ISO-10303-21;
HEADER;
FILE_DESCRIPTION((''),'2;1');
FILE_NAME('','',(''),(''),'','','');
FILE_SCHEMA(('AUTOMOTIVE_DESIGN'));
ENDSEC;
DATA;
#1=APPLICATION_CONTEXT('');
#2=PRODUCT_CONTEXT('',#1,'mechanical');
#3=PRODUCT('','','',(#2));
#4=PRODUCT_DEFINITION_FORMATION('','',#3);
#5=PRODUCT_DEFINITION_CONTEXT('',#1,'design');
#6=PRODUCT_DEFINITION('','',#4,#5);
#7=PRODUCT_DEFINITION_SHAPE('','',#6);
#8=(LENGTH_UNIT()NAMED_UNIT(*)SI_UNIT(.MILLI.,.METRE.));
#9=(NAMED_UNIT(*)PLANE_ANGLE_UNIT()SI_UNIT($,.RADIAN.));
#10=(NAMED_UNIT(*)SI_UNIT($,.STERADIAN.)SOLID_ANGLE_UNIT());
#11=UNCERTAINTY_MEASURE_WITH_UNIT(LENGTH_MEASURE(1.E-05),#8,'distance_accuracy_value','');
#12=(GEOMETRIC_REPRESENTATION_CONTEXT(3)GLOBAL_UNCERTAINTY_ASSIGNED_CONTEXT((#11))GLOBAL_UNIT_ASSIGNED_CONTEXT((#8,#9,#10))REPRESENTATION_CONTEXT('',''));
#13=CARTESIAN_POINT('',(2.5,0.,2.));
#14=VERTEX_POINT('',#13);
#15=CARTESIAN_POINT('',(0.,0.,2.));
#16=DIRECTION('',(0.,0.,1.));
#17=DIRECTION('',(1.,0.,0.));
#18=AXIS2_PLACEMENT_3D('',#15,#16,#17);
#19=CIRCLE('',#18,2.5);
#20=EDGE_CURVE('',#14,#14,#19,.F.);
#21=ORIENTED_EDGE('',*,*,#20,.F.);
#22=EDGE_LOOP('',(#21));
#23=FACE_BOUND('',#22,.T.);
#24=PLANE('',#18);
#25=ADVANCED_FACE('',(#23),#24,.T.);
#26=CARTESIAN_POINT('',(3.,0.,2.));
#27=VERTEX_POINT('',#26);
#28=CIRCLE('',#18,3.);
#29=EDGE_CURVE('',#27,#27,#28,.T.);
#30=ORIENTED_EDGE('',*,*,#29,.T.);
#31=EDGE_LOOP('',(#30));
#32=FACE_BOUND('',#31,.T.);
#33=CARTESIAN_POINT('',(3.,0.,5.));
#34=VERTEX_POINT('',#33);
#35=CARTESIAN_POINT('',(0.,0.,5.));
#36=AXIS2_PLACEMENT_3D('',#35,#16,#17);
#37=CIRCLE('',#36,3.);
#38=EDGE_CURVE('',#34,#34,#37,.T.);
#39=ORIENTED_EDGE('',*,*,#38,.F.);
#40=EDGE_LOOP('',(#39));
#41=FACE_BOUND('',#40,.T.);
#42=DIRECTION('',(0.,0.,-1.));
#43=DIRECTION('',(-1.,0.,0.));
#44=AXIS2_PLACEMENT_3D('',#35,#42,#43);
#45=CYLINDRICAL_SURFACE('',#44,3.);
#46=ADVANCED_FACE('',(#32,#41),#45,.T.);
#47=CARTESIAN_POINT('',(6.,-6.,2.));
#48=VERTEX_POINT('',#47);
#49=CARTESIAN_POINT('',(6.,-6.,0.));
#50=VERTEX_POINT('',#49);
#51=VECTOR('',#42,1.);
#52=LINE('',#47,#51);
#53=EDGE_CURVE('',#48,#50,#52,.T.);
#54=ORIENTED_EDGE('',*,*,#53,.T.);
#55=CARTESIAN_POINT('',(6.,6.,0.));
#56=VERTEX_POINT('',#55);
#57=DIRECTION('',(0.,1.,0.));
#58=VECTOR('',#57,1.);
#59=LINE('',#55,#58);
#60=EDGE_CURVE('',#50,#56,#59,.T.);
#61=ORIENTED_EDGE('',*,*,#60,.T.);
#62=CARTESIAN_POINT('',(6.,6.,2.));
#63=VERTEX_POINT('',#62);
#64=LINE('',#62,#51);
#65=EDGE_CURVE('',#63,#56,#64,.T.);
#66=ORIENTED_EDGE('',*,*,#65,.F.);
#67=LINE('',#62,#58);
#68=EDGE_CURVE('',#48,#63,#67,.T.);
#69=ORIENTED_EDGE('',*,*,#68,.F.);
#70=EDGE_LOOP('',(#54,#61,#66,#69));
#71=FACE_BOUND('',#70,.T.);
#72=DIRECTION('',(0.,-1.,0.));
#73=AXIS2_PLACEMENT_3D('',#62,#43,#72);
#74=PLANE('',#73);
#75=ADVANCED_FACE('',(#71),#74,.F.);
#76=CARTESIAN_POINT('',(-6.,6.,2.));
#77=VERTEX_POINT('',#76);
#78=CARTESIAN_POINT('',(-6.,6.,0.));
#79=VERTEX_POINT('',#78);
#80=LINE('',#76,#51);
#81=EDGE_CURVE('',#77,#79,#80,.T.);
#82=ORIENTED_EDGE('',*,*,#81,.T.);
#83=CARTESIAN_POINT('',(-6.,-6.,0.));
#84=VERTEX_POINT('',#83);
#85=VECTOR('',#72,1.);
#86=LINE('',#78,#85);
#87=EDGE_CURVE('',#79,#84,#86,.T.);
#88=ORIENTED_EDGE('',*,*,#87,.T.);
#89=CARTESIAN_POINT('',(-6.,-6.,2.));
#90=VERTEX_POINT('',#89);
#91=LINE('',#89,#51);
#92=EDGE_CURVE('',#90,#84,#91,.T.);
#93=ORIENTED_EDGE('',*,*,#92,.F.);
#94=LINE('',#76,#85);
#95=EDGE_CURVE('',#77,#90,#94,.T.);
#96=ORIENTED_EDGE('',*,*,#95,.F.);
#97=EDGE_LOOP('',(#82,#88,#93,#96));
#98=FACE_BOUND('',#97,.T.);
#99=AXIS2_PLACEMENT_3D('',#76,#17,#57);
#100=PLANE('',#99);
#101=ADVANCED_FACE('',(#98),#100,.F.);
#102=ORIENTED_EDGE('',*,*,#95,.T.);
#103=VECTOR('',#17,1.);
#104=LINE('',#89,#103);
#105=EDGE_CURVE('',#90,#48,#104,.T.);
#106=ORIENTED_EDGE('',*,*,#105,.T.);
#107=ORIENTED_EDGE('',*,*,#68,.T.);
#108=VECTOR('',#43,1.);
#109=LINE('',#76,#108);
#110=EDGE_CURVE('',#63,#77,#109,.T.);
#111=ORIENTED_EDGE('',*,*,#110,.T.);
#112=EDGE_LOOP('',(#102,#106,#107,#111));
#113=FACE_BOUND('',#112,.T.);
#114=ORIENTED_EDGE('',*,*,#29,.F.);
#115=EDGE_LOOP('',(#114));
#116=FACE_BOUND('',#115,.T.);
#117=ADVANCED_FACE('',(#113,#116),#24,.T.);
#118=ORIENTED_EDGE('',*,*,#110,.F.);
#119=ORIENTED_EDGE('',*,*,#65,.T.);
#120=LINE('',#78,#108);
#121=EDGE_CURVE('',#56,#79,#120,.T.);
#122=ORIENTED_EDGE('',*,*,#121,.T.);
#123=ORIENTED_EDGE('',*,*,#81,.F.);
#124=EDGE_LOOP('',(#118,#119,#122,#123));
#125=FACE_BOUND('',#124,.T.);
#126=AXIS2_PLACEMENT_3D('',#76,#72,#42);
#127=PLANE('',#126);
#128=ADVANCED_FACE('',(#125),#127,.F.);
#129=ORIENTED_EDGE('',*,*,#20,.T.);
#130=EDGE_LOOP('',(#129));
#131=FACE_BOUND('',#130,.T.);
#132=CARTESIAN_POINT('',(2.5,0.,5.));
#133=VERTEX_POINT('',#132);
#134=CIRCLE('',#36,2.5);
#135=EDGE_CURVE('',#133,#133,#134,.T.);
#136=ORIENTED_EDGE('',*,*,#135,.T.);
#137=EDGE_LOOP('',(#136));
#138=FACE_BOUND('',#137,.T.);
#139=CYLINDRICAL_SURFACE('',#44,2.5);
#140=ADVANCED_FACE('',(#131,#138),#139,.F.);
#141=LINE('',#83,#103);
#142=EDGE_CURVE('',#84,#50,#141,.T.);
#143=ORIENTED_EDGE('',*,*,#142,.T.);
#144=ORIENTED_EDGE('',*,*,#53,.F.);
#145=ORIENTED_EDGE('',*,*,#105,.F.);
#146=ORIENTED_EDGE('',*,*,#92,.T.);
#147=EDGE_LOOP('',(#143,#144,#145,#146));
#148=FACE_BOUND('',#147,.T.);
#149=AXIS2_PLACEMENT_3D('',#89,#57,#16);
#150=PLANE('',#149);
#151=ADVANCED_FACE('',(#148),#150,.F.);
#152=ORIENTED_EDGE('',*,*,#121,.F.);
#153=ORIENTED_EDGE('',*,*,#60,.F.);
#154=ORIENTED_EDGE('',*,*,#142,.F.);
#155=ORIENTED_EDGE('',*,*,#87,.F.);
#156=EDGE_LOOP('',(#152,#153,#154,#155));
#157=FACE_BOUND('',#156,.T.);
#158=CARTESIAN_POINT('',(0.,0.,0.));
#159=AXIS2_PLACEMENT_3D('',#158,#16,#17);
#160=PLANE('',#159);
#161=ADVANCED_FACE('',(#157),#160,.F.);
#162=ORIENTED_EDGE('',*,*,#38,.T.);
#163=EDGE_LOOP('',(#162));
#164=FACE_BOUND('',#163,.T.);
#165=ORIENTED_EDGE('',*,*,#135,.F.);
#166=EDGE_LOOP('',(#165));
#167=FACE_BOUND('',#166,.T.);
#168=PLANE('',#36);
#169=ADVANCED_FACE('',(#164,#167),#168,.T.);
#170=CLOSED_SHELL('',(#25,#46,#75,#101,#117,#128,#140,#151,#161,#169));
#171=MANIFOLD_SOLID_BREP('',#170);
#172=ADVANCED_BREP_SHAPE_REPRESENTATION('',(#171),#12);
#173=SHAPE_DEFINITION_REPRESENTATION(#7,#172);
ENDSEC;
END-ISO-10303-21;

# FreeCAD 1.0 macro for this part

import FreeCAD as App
import Part
import Sketcher
from FreeCAD import Vector
Q = App.Units.Quantity


def add_polygon(sketch, points):
    """Adds a closed chain of lines whose ends are joined by coincident constraints."""
    first, n = sketch.GeometryCount, len(points)
    for a, b in zip(points, points[1:] + points[:1]):
        sketch.addGeometry(Part.LineSegment(App.Vector(*a, 0), App.Vector(*b, 0)), False)
    for i in range(n):
        sketch.addConstraint(Sketcher.Constraint("Coincident", first + i, 2, first + (i + 1) % n, 1))

doc = App.newDocument("Part")
body = doc.addObject("PartDesign::Body", "Body")

sketch1 = doc.addObject("Sketcher::SketchObject", "Sketch")
body.addObject(sketch1)
sketch1.AttachmentSupport = (doc.XY_Plane, [""])
sketch1.MapMode = "FlatFace"
add_polygon(sketch1, [(-6, 6), (-6, -6), (6, -6), (6, 6)])
sketch1.addConstraint([
    Sketcher.Constraint("Vertical", 0),
    Sketcher.Constraint("Horizontal", 1),
    Sketcher.Constraint("Vertical", 2),
    Sketcher.Constraint("Horizontal", 3),
    Sketcher.Constraint("Symmetric", 0, 2, 2, 2, -1, 1),
    Sketcher.Constraint("Equal", 3, 0),
    Sketcher.Constraint("DistanceX", 1, 1, 1, 2, Q("12 mm")),
])
pad1 = doc.addObject("PartDesign::Pad", "Pad")
body.addObject(pad1)
pad1.Profile = sketch1
pad1.Length = 2

sketch2 = doc.addObject("Sketcher::SketchObject", "Sketch001")
body.addObject(sketch2)
sketch2.AttachmentSupport = (doc.XY_Plane, [""])
sketch2.MapMode = "FlatFace"
sketch2.AttachmentOffset = App.Placement(Vector(0, 0, 2), App.Rotation())
sketch2.addGeometry([
    Part.Circle(Vector(0, 0, 0), Vector(0, 0, 1), 3),
    Part.Circle(Vector(0, 0, 0), Vector(0, 0, 1), 2.5),
], False)
sketch2.addConstraint([
    Sketcher.Constraint("Coincident", 0, 3, -1, 1),
    Sketcher.Constraint("Coincident", 1, 3, -1, 1),
    Sketcher.Constraint("Diameter", 0, Q("6 mm")),
    Sketcher.Constraint("Diameter", 1, Q("5 mm")),
])
pad2 = doc.addObject("PartDesign::Pad", "Pad001")
body.addObject(pad2)
pad2.Profile = sketch2
pad2.Length = 3

doc.recompute()
